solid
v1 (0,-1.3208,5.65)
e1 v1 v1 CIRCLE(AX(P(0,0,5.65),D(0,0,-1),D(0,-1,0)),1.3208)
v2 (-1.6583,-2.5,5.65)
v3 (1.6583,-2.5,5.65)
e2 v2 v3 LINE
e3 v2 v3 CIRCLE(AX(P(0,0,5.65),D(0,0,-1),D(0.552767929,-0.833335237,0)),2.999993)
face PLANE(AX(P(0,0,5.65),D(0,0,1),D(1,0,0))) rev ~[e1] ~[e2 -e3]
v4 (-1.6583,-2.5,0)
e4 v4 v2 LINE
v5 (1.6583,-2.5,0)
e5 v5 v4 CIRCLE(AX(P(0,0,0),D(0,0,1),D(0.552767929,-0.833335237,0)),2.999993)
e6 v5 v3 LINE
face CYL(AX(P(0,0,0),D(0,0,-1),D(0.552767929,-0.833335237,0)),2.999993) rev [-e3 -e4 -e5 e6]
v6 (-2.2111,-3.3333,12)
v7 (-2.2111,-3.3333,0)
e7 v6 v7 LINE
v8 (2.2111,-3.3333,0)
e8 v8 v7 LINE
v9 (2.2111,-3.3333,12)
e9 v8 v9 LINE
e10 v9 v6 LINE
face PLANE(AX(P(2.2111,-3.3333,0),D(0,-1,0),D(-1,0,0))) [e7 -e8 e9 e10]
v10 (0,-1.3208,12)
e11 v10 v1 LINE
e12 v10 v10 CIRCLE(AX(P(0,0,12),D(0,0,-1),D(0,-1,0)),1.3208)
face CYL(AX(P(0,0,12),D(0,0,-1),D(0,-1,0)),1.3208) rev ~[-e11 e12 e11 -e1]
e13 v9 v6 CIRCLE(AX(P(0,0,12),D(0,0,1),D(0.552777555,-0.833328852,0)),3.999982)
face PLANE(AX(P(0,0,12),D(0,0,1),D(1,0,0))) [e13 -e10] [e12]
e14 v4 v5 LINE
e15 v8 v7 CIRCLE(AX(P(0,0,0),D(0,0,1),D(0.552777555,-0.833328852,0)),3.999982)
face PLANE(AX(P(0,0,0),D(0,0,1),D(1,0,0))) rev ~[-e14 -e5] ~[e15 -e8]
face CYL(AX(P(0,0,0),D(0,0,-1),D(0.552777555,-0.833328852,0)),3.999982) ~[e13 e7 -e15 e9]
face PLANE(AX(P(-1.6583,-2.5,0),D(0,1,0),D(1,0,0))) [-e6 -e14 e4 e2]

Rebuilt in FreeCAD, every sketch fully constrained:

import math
import FreeCAD as App
import Part
import Sketcher

V = App.Vector

doc = App.newDocument("Part")
body = doc.addObject("PartDesign::Body", "Body")

# Sketch on XY plane
sketch1 = doc.addObject("Sketcher::SketchObject", "Sketch")
body.addObject(sketch1)
sketch1.AttachmentSupport = (doc.XY_Plane, [""])
sketch1.MapMode = "FlatFace"
sketch1.addGeometry(Part.LineSegment(V(-2.2, -3.3, 0), V(2.2, -3.3, 0)), False)
sketch1.addGeometry(Part.ArcOfCircle(Part.Circle(V(0, 0, 0), V(0, 0, 1), 4), math.radians(-56), math.radians(236)), False)
sketch1.addGeometry(Part.LineSegment(V(1.7, -2.5, 0), V(-1.7, -2.5, 0)), False)
sketch1.addGeometry(Part.ArcOfCircle(Part.Circle(V(0, 0, 0), V(0, 0, 1), 3), math.radians(-56), math.radians(236)), False)
sketch1.addConstraint(Sketcher.Constraint("Coincident", 0, 1, 1, 2))
sketch1.addConstraint(Sketcher.Constraint("Coincident", 1, 1, 0, 2))
sketch1.addConstraint(Sketcher.Constraint("Coincident", 2, 1, 3, 1))
sketch1.addConstraint(Sketcher.Constraint("Coincident", 3, 2, 2, 2))
sketch1.addConstraint(Sketcher.Constraint("Horizontal", 0))
sketch1.addConstraint(Sketcher.Constraint("Horizontal", 2))
sketch1.addConstraint(Sketcher.Constraint("Coincident", 1, 3, -1, 1))
sketch1.addConstraint(Sketcher.Constraint("Coincident", 3, 3, -1, 1))
sketch1.addConstraint(Sketcher.Constraint("Radius", 1, 4.0))
sketch1.addConstraint(Sketcher.Constraint("Radius", 3, 3.0))
sketch1.addConstraint(Sketcher.Constraint("DistanceX", 2, 2, 2, 1, 3.3166))
sketch1.addConstraint(Sketcher.Constraint("DistanceY", 0, 1, -1, 1, 3.3333))
pad1 = doc.addObject("PartDesign::Pad", "Pad")
body.addObject(pad1)
pad1.Profile = sketch1
pad1.Length = 12

# Sketch on XY plane
sketch2 = doc.addObject("Sketcher::SketchObject", "Sketch001")
body.addObject(sketch2)
sketch2.AttachmentSupport = (doc.XY_Plane, [""])
sketch2.MapMode = "FlatFace"
sketch2.AttachmentOffset = App.Placement(V(0, 0, 12), App.Rotation())
sketch2.addGeometry(Part.LineSegment(V(-2.2, -3.3, 0), V(2.2, -3.3, 0)), False)
sketch2.addGeometry(Part.ArcOfCircle(Part.Circle(V(0, 0, 0), V(0, 0, 1), 4), math.radians(-56), math.radians(236)), False)
sketch2.addConstraint(Sketcher.Constraint("Coincident", 0, 1, 1, 2))
sketch2.addConstraint(Sketcher.Constraint("Coincident", 1, 1, 0, 2))
sketch2.addConstraint(Sketcher.Constraint("Horizontal", 0))
sketch2.addConstraint(Sketcher.Constraint("Coincident", 1, 3, -1, 1))
sketch2.addConstraint(Sketcher.Constraint("Radius", 1, 4.0))
sketch2.addConstraint(Sketcher.Constraint("DistanceX", 0, 1, 0, 2, 4.4222))
pad2 = doc.addObject("PartDesign::Pad", "Pad001")
body.addObject(pad2)
pad2.Profile = sketch2
pad2.Length = 6.35
pad2.Reversed = True

# Sketch on XY plane
sketch3 = doc.addObject("Sketcher::SketchObject", "Sketch002")
body.addObject(sketch3)
sketch3.AttachmentSupport = (doc.XY_Plane, [""])
sketch3.MapMode = "FlatFace"
sketch3.AttachmentOffset = App.Placement(V(0, 0, 12), App.Rotation())
sketch3.addGeometry(Part.Circle(V(0, 0, 0), V(0, 0, 1), 1.3), False)
sketch3.addConstraint(Sketcher.Constraint("Coincident", 0, 3, -1, 1))
sketch3.addConstraint(Sketcher.Constraint("Diameter", 0, 2.6416))
doc.recompute()
hole = doc.addObject("PartDesign::Hole", "Hole")
body.addObject(hole)
hole.Profile = sketch3
hole.ThreadType = "None"
hole.Diameter = 2.6416
hole.DepthType = "ThroughAll"

doc.recompute()
